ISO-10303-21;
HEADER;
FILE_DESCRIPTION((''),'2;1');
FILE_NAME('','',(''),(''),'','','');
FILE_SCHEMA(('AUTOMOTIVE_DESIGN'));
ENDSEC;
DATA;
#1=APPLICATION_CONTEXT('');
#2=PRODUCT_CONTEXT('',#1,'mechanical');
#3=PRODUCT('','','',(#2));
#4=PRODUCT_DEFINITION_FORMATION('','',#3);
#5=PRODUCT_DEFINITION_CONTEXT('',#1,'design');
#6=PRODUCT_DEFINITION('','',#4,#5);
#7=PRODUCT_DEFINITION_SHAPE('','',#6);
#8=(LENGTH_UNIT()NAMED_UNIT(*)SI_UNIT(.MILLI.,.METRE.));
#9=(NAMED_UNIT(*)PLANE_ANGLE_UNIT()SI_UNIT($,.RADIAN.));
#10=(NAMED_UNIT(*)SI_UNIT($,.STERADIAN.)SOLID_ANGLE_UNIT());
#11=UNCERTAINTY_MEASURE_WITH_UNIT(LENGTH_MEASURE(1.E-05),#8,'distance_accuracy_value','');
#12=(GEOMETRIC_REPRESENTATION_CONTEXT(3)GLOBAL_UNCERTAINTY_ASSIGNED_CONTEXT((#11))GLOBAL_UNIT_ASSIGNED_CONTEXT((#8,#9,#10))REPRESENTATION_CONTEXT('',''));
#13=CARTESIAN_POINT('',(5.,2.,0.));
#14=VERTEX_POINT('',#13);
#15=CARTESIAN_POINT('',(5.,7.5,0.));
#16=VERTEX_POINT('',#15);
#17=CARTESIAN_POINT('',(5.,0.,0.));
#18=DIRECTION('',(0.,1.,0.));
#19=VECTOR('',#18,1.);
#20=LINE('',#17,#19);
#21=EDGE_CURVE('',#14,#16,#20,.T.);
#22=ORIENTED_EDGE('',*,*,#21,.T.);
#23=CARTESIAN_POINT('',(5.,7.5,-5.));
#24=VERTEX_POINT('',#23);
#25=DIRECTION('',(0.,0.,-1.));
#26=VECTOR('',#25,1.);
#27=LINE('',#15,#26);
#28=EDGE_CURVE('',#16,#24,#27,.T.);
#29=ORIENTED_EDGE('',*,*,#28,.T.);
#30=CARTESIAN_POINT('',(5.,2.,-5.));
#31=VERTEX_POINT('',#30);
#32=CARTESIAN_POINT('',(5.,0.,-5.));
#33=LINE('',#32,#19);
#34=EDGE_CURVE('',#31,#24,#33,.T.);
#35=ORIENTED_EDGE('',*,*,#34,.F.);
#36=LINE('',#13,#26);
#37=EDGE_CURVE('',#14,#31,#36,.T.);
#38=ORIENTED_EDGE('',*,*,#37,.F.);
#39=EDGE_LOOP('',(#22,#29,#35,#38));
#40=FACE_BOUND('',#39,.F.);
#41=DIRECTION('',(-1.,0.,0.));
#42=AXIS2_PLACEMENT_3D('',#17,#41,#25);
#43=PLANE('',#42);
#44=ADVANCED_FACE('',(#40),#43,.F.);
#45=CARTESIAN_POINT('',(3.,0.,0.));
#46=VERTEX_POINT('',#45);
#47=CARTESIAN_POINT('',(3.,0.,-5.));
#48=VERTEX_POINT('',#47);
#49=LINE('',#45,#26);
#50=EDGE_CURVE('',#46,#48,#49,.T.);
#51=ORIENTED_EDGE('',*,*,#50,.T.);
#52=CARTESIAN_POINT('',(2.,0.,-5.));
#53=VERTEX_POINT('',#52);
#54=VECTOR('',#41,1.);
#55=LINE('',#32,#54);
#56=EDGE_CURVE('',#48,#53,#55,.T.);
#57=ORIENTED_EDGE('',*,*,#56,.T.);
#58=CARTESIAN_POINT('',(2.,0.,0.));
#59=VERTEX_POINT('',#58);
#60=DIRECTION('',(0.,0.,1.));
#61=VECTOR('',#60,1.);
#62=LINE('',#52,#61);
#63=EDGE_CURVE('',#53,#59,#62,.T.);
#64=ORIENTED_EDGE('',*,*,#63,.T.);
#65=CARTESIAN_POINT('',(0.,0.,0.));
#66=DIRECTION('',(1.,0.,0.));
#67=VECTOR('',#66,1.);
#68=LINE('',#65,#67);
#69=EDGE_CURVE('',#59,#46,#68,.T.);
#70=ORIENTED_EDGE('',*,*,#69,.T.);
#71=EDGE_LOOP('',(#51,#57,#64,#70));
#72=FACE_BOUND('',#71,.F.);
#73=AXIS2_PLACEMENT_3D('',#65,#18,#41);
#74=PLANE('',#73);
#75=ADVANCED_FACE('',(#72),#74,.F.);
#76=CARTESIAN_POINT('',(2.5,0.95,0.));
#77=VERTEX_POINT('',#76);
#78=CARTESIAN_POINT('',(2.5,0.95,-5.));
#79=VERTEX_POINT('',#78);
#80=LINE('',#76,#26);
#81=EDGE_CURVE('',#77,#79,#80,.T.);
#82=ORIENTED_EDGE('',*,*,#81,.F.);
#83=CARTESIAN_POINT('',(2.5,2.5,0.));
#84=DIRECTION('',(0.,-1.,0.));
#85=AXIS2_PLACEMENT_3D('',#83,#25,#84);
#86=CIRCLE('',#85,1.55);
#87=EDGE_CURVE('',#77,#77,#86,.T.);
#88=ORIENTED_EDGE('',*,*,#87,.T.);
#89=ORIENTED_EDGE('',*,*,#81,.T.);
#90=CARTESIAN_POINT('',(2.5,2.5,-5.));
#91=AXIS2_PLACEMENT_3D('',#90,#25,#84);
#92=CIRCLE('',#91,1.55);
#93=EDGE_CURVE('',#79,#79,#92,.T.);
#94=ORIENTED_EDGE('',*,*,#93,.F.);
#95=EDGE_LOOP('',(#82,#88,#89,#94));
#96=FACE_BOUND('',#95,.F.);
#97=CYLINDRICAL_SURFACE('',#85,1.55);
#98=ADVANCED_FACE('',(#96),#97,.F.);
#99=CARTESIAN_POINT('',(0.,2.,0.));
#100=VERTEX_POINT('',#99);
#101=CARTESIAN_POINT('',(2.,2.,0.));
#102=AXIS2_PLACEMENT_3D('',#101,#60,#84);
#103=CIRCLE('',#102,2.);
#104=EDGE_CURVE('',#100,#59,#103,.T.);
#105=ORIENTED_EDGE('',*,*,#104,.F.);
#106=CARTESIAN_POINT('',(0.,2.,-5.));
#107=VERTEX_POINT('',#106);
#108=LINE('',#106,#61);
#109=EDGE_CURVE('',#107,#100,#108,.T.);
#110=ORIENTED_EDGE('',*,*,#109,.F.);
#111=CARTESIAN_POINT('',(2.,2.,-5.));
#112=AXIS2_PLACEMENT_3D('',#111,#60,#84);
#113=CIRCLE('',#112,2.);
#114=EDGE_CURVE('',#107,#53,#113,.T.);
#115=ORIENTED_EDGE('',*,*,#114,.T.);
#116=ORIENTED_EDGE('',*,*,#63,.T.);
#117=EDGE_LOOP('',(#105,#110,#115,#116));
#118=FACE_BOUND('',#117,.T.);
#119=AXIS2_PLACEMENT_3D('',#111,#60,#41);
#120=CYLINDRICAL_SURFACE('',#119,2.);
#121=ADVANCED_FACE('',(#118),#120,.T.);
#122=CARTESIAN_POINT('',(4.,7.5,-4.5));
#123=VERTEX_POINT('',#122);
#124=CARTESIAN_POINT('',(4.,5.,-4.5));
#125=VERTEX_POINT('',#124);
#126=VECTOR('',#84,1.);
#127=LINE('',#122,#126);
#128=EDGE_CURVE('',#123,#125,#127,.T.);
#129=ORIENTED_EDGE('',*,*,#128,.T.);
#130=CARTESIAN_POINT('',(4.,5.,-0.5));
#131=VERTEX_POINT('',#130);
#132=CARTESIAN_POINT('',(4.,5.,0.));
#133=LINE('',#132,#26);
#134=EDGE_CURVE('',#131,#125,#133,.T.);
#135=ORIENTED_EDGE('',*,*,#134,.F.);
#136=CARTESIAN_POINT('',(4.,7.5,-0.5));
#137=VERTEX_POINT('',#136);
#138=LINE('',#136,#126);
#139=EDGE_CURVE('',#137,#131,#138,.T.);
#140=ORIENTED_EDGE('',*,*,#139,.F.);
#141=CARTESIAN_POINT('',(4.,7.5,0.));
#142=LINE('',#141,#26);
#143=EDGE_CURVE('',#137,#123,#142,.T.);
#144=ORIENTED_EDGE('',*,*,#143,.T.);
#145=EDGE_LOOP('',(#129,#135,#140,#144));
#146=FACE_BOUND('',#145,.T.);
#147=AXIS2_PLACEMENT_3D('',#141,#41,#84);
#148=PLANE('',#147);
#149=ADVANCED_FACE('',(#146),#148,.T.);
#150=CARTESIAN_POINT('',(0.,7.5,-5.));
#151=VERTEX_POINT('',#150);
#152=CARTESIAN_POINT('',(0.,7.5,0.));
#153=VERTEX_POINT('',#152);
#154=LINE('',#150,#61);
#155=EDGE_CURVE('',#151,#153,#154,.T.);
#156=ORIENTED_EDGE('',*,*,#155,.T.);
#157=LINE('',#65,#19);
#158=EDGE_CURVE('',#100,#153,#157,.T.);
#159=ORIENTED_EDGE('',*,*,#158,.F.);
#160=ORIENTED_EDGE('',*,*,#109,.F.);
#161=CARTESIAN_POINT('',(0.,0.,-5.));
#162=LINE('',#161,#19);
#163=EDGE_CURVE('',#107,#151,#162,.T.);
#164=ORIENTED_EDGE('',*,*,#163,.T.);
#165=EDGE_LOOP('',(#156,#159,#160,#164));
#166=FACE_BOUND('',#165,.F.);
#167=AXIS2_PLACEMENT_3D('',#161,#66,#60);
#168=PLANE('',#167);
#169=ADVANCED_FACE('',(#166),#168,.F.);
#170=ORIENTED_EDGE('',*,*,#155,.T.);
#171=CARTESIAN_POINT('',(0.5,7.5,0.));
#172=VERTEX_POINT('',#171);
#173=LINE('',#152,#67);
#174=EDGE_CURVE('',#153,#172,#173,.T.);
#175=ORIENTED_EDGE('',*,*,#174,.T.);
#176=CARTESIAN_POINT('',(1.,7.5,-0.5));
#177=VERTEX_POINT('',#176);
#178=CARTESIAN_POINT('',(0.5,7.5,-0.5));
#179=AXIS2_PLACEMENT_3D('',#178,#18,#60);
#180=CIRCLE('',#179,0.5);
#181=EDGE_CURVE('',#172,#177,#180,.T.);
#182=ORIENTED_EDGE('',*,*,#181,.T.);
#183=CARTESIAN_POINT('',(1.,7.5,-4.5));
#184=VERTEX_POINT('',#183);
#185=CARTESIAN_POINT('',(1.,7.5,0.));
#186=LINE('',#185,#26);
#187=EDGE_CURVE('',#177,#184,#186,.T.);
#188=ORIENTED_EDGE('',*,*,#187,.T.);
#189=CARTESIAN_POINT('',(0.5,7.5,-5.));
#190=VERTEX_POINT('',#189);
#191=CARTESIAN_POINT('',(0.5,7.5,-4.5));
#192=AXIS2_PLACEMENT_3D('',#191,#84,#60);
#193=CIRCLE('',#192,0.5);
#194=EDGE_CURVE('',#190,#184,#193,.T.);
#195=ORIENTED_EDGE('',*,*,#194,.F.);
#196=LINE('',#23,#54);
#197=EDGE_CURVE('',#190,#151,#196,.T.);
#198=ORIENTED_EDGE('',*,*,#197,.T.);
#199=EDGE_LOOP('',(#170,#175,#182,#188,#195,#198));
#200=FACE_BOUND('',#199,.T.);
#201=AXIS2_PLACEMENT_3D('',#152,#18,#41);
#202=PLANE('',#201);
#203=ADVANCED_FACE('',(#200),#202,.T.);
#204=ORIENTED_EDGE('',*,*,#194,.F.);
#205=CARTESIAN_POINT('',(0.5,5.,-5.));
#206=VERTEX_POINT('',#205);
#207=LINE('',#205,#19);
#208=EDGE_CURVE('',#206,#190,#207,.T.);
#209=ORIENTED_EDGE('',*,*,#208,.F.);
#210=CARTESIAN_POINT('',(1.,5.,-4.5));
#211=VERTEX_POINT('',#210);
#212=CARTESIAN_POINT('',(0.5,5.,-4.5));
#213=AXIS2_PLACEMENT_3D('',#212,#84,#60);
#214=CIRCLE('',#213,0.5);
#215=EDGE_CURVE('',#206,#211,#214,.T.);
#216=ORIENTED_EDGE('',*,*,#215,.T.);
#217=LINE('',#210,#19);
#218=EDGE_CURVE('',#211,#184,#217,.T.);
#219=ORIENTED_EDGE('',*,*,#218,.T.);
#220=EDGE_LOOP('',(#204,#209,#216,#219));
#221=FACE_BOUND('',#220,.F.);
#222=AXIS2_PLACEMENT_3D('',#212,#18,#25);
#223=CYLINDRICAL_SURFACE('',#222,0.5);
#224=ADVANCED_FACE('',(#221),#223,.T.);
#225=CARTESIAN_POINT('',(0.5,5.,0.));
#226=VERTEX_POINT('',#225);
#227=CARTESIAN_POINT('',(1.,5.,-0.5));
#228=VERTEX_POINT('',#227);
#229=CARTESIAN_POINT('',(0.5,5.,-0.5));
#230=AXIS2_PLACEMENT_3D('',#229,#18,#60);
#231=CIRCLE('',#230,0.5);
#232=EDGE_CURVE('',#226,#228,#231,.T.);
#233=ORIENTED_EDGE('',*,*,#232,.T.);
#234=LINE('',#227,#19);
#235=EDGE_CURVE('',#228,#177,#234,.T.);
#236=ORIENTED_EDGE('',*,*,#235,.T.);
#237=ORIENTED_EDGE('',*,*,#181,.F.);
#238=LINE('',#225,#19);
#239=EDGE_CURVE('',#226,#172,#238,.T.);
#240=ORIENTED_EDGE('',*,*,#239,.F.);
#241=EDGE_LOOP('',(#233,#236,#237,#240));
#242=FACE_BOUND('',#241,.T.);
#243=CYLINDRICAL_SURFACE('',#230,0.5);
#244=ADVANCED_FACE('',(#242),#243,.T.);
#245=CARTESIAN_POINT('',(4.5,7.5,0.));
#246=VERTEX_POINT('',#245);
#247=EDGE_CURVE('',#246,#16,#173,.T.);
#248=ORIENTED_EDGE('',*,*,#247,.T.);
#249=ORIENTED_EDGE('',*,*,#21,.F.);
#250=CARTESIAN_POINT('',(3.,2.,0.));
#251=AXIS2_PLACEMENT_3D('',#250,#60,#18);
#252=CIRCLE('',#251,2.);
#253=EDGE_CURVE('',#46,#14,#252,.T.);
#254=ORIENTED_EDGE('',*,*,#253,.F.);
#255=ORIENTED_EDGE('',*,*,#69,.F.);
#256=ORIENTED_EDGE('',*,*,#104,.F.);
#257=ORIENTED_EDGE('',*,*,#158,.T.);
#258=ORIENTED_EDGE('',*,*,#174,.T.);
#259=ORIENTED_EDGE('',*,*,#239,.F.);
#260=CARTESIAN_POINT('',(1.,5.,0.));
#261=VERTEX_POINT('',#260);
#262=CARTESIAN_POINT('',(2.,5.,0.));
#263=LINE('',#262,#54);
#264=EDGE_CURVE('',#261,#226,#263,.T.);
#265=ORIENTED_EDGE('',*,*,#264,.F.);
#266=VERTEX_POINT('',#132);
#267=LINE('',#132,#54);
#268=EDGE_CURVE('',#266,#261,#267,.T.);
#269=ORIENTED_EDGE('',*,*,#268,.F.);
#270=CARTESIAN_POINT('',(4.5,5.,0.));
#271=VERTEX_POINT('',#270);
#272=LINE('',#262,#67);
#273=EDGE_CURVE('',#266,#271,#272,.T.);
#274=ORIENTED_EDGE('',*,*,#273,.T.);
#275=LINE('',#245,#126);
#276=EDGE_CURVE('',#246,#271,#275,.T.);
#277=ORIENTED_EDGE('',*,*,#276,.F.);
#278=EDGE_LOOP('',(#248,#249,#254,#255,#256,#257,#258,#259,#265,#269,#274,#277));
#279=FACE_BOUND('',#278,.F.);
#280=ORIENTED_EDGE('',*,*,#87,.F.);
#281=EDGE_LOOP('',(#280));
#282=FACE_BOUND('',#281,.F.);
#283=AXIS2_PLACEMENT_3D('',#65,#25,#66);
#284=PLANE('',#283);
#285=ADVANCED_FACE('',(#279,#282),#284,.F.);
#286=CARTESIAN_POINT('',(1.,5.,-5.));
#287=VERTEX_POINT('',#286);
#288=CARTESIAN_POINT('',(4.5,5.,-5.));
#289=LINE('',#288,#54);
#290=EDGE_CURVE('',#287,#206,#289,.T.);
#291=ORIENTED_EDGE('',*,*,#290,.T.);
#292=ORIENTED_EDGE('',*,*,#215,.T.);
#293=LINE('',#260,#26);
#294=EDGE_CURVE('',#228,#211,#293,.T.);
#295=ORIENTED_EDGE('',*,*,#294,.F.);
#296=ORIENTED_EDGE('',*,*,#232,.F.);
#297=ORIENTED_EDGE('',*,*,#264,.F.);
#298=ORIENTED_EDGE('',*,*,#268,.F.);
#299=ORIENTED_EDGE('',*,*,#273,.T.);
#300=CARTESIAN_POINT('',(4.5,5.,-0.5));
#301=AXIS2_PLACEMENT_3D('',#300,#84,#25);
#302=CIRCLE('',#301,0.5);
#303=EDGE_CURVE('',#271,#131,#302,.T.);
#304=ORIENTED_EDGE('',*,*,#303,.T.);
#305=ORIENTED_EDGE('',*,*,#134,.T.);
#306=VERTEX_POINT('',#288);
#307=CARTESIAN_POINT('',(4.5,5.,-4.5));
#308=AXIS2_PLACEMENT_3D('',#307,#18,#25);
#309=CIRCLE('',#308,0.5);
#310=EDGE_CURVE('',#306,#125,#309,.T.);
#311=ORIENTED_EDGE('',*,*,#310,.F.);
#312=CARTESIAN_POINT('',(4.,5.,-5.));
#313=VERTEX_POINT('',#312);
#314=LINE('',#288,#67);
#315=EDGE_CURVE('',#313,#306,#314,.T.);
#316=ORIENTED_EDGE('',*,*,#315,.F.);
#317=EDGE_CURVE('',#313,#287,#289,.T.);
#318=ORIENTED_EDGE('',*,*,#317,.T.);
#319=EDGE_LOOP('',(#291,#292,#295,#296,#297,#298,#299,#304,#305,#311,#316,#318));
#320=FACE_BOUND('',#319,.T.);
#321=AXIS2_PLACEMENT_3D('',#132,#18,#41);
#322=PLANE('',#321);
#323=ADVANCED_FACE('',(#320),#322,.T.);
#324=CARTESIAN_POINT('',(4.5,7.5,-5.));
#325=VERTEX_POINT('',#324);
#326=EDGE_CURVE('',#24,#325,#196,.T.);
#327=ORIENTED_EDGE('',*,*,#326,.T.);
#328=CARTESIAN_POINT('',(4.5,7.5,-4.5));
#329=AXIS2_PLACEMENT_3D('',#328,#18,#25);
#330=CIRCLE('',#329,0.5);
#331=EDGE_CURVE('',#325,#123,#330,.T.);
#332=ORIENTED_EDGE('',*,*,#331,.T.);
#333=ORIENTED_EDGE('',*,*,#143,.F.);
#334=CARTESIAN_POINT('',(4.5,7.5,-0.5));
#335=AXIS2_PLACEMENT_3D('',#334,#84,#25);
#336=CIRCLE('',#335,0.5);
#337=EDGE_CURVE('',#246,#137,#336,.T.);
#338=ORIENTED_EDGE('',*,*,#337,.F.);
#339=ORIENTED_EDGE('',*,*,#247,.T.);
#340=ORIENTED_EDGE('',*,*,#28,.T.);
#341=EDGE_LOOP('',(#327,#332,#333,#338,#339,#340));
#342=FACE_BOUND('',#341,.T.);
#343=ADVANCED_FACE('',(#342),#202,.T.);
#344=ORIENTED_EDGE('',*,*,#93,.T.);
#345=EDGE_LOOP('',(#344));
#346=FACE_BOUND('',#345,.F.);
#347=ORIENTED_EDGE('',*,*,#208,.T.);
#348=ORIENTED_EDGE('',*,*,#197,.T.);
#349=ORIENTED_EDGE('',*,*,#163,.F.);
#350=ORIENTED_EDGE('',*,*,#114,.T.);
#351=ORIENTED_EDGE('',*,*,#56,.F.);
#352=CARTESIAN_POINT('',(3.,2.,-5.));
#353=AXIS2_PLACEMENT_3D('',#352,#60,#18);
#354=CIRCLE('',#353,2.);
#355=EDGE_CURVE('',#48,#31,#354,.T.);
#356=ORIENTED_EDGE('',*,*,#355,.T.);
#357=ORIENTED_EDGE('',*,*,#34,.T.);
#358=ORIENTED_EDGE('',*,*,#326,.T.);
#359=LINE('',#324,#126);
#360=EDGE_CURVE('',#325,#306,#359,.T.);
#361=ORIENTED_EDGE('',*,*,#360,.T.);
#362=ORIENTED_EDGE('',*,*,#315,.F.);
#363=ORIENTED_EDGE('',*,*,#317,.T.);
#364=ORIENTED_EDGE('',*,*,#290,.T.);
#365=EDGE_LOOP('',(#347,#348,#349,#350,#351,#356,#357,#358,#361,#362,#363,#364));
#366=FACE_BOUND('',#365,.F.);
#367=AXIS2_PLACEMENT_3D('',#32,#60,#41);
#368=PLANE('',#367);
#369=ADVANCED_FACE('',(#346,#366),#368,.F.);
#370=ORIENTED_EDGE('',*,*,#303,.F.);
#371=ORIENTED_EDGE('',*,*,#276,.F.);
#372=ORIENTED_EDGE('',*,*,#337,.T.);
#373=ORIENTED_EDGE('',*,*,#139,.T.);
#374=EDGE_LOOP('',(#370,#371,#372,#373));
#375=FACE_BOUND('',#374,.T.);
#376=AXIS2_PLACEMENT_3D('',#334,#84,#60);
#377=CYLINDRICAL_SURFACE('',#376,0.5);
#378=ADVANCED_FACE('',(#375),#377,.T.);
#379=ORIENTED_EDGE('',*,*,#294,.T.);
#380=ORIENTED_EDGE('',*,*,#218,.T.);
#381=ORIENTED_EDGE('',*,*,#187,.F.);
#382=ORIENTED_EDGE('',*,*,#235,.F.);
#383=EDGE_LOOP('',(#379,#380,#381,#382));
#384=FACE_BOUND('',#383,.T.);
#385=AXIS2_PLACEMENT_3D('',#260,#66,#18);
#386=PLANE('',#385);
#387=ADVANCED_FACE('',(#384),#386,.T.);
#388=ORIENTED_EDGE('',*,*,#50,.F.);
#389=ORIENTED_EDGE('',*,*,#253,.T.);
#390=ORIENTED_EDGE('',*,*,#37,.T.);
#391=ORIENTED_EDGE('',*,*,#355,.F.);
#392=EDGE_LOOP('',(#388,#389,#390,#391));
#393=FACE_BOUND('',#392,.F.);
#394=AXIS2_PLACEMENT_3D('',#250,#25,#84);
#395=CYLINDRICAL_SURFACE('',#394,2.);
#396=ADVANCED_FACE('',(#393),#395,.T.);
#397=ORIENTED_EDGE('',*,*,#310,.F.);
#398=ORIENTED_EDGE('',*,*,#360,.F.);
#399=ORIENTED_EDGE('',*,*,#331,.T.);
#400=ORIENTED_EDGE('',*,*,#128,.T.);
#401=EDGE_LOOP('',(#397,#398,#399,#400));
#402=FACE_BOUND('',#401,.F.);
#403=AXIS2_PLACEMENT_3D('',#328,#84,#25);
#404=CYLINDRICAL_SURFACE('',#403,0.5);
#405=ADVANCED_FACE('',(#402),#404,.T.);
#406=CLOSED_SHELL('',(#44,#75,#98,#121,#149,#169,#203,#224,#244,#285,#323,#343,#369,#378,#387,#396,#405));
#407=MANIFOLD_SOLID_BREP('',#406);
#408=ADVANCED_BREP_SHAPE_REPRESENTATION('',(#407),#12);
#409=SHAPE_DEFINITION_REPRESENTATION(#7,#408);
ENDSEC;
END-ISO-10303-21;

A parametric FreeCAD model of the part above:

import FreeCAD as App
import Part
import Sketcher
from FreeCAD import Vector
Q = App.Units.Quantity


def edges_at(feature, points):
    """Names of the edges that pass closest to the given points."""
    edges = feature.Shape.Edges
    near = lambda p: min(range(len(edges)), key=lambda i: edges[i].distToShape(Part.Vertex(*p))[0])
    return sorted({f"Edge{near(p) + 1}" for p in points})

doc = App.newDocument("Part")
params = doc.addObject("Spreadsheet::Sheet", "Params")
for row, (alias, value) in enumerate([
    ("sketch1_width", "5 mm"),
    ("pad1_length", "7.5 mm"),
    ("sketch2_diameter", "3.1 mm"),
    ("hole_diameter", "3.1 mm"),
    ("sketch3_width", "3 mm"),
    ("sketch3_height", "2.5 mm"),
    ("fillet_radius", "2 mm"),
    ("fillet2_radius", "0.5 mm"),
], start=1):
    params.set(f"A{row}", alias)
    params.set(f"B{row}", "=" + value)
    params.setAlias(f"B{row}", alias)

body = doc.addObject("PartDesign::Body", "Body")

# Sketch on XZ plane
sketch1 = doc.addObject("Sketcher::SketchObject", "Sketch")
body.addObject(sketch1)
sketch1.AttachmentSupport = (doc.XZ_Plane, [""])
sketch1.MapMode = "FlatFace"
sketch1.addGeometry(Part.LineSegment(Vector(0, -5, 0), Vector(0, 0, 0)), False)
sketch1.addGeometry(Part.LineSegment(Vector(0, 0, 0), Vector(5, 0, 0)), False)
sketch1.addGeometry(Part.LineSegment(Vector(5, 0, 0), Vector(5, -5, 0)), False)
sketch1.addGeometry(Part.LineSegment(Vector(5, -5, 0), Vector(0, -5, 0)), False)
sketch1.addConstraint(Sketcher.Constraint("Coincident", 0, 2, 1, 1))
sketch1.addConstraint(Sketcher.Constraint("Coincident", 1, 2, 2, 1))
sketch1.addConstraint(Sketcher.Constraint("Coincident", 2, 2, 3, 1))
sketch1.addConstraint(Sketcher.Constraint("Coincident", 3, 2, 0, 1))
sketch1.addConstraint(Sketcher.Constraint("Vertical", 0))
sketch1.addConstraint(Sketcher.Constraint("Horizontal", 1))
sketch1.addConstraint(Sketcher.Constraint("Vertical", 2))
sketch1.addConstraint(Sketcher.Constraint("Horizontal", 3))
sketch1.addConstraint(Sketcher.Constraint("Coincident", 0, 2, -1, 1))
sketch1.addConstraint(Sketcher.Constraint("Equal", 3, 0))
sketch1.addConstraint(Sketcher.Constraint("DistanceX", 1, 1, 1, 2, Q("5 mm")))
sketch1.setExpression("Constraints[10]", "Params.sketch1_width")
pad1 = doc.addObject("PartDesign::Pad", "Pad")
body.addObject(pad1)
pad1.Profile = sketch1
pad1.setExpression("Length", "Params.pad1_length")
pad1.Reversed = True

# Sketch on XY plane
sketch2 = doc.addObject("Sketcher::SketchObject", "Sketch001")
body.addObject(sketch2)
sketch2.AttachmentSupport = (doc.XY_Plane, [""])
sketch2.MapMode = "FlatFace"
sketch2.addGeometry(Part.Circle(Vector(2.5, 2.5, 0), Vector(0, 0, 1), 1.6), False)
sketch2.addConstraint(Sketcher.Constraint("Diameter", 0, Q("3.1 mm")))
sketch2.addConstraint(Sketcher.Constraint("DistanceX", -1, 1, 0, 3, Q("2.5 mm")))
sketch2.addConstraint(Sketcher.Constraint("DistanceY", -1, 1, 0, 3, Q("2.5 mm")))
sketch2.setExpression("Constraints[0]", "Params.sketch2_diameter")
doc.recompute()
hole = doc.addObject("PartDesign::Hole", "Hole")
body.addObject(hole)
hole.Profile = sketch2
hole.ThreadType = "None"
hole.setExpression("Diameter", "Params.hole_diameter")
hole.DepthType = "ThroughAll"

# Sketch on XY plane
sketch3 = doc.addObject("Sketcher::SketchObject", "Sketch002")
body.addObject(sketch3)
sketch3.AttachmentSupport = (doc.XY_Plane, [""])
sketch3.MapMode = "FlatFace"
sketch3.addGeometry(Part.LineSegment(Vector(4, 7.5, 0), Vector(1, 7.5, 0)), False)
sketch3.addGeometry(Part.LineSegment(Vector(1, 7.5, 0), Vector(1, 5, 0)), False)
sketch3.addGeometry(Part.LineSegment(Vector(1, 5, 0), Vector(4, 5, 0)), False)
sketch3.addGeometry(Part.LineSegment(Vector(4, 5, 0), Vector(4, 7.5, 0)), False)
sketch3.addConstraint(Sketcher.Constraint("Coincident", 0, 2, 1, 1))
sketch3.addConstraint(Sketcher.Constraint("Coincident", 1, 2, 2, 1))
sketch3.addConstraint(Sketcher.Constraint("Coincident", 2, 2, 3, 1))
sketch3.addConstraint(Sketcher.Constraint("Coincident", 3, 2, 0, 1))
sketch3.addConstraint(Sketcher.Constraint("Horizontal", 0))
sketch3.addConstraint(Sketcher.Constraint("Vertical", 1))
sketch3.addConstraint(Sketcher.Constraint("Horizontal", 2))
sketch3.addConstraint(Sketcher.Constraint("Vertical", 3))
sketch3.addConstraint(Sketcher.Constraint("DistanceX", 0, 2, 0, 1, Q("3 mm")))
sketch3.addConstraint(Sketcher.Constraint("DistanceY", 1, 2, 1, 1, Q("2.5 mm")))
sketch3.addConstraint(Sketcher.Constraint("DistanceX", -1, 1, 0, 2, Q("1 mm")))
sketch3.addConstraint(Sketcher.Constraint("DistanceY", -1, 1, 1, 2, Q("5 mm")))
sketch3.setExpression("Constraints[8]", "Params.sketch3_width")
sketch3.setExpression("Constraints[9]", "Params.sketch3_height")
pocket1 = doc.addObject("PartDesign::Pocket", "Pocket")
body.addObject(pocket1)
pocket1.Profile = sketch3
pocket1.Type = "ThroughAll"
doc.recompute()

fillet = doc.addObject("PartDesign::Fillet", "Fillet")
body.addObject(fillet)
fillet.Base = (pocket1, edges_at(pocket1, [(5, 0, -2.5), (0, 0, -2.5)]))
fillet.setExpression("Radius", "Params.fillet_radius")
doc.recompute()

fillet2 = doc.addObject("PartDesign::Fillet", "Fillet001")
body.addObject(fillet2)
fillet2.Base = (fillet, edges_at(fillet, [
    (1, 6.25, 0),
    (4, 6.25, 0),
    (1, 6.25, -5),
    (4, 6.25, -5),
]))
fillet2.setExpression("Radius", "Params.fillet2_radius")

doc.recompute()
